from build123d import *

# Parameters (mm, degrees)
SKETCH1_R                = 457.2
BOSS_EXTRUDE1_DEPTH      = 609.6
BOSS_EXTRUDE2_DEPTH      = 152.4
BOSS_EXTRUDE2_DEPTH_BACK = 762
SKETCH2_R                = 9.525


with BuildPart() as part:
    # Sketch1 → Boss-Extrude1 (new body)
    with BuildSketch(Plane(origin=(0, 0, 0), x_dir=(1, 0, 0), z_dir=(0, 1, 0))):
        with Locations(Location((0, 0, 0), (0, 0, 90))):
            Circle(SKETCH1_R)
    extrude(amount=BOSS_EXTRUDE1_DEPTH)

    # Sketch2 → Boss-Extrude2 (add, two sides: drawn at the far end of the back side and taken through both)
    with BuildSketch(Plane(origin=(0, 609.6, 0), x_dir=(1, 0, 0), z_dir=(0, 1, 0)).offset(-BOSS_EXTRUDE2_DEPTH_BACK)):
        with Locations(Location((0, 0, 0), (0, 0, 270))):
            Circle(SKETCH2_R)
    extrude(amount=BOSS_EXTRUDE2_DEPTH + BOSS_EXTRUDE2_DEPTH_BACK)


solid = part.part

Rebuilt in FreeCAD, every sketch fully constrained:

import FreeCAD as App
import Part
import Sketcher
from FreeCAD import Vector
Q = App.Units.Quantity

doc = App.newDocument("Part")
body = doc.addObject("PartDesign::Body", "Body")

# Sketch on XZ plane
sketch1 = body.newObject("Sketcher::SketchObject", "Sketch")
sketch1.AttachmentSupport = (doc.getObject("XZ_Plane"), [""])
sketch1.MapMode = "FlatFace"
sketch1.addGeometry(Part.Circle(Vector(0, 0, 0), Vector(0, 0, 1), 457), False)
sketch1.addConstraint([
    Sketcher.Constraint("Coincident", 0, 3, -1, 1),
    Sketcher.Constraint("Diameter", 0, Q("36 in")),
])
pad1 = body.newObject("PartDesign::Pad", "Pad")
pad1.Profile = sketch1
pad1.Length = Q("24 in")
pad1.Reversed = True

# Sketch on XZ plane
sketch2 = body.newObject("Sketcher::SketchObject", "Sketch001")
sketch2.AttachmentSupport = (doc.getObject("XZ_Plane"), [""])
sketch2.MapMode = "FlatFace"
sketch2.AttachmentOffset = App.Placement(Vector(0, 0, -24 * 25.4), App.Rotation())
sketch2.addGeometry(Part.Circle(Vector(0, 0, 0), Vector(0, 0, 1), 10), False)
sketch2.addConstraint([
    Sketcher.Constraint("Coincident", 0, 3, -1, 1),
    Sketcher.Constraint("Diameter", 0, Q("0.75 in")),
])
pad2 = body.newObject("PartDesign::Pad", "Pad001")
pad2.Profile = sketch2
pad2.Type = "TwoLengths"
pad2.Length = Q("6 in")
pad2.Length2 = Q("30 in")
pad2.Reversed = True

doc.recompute()
